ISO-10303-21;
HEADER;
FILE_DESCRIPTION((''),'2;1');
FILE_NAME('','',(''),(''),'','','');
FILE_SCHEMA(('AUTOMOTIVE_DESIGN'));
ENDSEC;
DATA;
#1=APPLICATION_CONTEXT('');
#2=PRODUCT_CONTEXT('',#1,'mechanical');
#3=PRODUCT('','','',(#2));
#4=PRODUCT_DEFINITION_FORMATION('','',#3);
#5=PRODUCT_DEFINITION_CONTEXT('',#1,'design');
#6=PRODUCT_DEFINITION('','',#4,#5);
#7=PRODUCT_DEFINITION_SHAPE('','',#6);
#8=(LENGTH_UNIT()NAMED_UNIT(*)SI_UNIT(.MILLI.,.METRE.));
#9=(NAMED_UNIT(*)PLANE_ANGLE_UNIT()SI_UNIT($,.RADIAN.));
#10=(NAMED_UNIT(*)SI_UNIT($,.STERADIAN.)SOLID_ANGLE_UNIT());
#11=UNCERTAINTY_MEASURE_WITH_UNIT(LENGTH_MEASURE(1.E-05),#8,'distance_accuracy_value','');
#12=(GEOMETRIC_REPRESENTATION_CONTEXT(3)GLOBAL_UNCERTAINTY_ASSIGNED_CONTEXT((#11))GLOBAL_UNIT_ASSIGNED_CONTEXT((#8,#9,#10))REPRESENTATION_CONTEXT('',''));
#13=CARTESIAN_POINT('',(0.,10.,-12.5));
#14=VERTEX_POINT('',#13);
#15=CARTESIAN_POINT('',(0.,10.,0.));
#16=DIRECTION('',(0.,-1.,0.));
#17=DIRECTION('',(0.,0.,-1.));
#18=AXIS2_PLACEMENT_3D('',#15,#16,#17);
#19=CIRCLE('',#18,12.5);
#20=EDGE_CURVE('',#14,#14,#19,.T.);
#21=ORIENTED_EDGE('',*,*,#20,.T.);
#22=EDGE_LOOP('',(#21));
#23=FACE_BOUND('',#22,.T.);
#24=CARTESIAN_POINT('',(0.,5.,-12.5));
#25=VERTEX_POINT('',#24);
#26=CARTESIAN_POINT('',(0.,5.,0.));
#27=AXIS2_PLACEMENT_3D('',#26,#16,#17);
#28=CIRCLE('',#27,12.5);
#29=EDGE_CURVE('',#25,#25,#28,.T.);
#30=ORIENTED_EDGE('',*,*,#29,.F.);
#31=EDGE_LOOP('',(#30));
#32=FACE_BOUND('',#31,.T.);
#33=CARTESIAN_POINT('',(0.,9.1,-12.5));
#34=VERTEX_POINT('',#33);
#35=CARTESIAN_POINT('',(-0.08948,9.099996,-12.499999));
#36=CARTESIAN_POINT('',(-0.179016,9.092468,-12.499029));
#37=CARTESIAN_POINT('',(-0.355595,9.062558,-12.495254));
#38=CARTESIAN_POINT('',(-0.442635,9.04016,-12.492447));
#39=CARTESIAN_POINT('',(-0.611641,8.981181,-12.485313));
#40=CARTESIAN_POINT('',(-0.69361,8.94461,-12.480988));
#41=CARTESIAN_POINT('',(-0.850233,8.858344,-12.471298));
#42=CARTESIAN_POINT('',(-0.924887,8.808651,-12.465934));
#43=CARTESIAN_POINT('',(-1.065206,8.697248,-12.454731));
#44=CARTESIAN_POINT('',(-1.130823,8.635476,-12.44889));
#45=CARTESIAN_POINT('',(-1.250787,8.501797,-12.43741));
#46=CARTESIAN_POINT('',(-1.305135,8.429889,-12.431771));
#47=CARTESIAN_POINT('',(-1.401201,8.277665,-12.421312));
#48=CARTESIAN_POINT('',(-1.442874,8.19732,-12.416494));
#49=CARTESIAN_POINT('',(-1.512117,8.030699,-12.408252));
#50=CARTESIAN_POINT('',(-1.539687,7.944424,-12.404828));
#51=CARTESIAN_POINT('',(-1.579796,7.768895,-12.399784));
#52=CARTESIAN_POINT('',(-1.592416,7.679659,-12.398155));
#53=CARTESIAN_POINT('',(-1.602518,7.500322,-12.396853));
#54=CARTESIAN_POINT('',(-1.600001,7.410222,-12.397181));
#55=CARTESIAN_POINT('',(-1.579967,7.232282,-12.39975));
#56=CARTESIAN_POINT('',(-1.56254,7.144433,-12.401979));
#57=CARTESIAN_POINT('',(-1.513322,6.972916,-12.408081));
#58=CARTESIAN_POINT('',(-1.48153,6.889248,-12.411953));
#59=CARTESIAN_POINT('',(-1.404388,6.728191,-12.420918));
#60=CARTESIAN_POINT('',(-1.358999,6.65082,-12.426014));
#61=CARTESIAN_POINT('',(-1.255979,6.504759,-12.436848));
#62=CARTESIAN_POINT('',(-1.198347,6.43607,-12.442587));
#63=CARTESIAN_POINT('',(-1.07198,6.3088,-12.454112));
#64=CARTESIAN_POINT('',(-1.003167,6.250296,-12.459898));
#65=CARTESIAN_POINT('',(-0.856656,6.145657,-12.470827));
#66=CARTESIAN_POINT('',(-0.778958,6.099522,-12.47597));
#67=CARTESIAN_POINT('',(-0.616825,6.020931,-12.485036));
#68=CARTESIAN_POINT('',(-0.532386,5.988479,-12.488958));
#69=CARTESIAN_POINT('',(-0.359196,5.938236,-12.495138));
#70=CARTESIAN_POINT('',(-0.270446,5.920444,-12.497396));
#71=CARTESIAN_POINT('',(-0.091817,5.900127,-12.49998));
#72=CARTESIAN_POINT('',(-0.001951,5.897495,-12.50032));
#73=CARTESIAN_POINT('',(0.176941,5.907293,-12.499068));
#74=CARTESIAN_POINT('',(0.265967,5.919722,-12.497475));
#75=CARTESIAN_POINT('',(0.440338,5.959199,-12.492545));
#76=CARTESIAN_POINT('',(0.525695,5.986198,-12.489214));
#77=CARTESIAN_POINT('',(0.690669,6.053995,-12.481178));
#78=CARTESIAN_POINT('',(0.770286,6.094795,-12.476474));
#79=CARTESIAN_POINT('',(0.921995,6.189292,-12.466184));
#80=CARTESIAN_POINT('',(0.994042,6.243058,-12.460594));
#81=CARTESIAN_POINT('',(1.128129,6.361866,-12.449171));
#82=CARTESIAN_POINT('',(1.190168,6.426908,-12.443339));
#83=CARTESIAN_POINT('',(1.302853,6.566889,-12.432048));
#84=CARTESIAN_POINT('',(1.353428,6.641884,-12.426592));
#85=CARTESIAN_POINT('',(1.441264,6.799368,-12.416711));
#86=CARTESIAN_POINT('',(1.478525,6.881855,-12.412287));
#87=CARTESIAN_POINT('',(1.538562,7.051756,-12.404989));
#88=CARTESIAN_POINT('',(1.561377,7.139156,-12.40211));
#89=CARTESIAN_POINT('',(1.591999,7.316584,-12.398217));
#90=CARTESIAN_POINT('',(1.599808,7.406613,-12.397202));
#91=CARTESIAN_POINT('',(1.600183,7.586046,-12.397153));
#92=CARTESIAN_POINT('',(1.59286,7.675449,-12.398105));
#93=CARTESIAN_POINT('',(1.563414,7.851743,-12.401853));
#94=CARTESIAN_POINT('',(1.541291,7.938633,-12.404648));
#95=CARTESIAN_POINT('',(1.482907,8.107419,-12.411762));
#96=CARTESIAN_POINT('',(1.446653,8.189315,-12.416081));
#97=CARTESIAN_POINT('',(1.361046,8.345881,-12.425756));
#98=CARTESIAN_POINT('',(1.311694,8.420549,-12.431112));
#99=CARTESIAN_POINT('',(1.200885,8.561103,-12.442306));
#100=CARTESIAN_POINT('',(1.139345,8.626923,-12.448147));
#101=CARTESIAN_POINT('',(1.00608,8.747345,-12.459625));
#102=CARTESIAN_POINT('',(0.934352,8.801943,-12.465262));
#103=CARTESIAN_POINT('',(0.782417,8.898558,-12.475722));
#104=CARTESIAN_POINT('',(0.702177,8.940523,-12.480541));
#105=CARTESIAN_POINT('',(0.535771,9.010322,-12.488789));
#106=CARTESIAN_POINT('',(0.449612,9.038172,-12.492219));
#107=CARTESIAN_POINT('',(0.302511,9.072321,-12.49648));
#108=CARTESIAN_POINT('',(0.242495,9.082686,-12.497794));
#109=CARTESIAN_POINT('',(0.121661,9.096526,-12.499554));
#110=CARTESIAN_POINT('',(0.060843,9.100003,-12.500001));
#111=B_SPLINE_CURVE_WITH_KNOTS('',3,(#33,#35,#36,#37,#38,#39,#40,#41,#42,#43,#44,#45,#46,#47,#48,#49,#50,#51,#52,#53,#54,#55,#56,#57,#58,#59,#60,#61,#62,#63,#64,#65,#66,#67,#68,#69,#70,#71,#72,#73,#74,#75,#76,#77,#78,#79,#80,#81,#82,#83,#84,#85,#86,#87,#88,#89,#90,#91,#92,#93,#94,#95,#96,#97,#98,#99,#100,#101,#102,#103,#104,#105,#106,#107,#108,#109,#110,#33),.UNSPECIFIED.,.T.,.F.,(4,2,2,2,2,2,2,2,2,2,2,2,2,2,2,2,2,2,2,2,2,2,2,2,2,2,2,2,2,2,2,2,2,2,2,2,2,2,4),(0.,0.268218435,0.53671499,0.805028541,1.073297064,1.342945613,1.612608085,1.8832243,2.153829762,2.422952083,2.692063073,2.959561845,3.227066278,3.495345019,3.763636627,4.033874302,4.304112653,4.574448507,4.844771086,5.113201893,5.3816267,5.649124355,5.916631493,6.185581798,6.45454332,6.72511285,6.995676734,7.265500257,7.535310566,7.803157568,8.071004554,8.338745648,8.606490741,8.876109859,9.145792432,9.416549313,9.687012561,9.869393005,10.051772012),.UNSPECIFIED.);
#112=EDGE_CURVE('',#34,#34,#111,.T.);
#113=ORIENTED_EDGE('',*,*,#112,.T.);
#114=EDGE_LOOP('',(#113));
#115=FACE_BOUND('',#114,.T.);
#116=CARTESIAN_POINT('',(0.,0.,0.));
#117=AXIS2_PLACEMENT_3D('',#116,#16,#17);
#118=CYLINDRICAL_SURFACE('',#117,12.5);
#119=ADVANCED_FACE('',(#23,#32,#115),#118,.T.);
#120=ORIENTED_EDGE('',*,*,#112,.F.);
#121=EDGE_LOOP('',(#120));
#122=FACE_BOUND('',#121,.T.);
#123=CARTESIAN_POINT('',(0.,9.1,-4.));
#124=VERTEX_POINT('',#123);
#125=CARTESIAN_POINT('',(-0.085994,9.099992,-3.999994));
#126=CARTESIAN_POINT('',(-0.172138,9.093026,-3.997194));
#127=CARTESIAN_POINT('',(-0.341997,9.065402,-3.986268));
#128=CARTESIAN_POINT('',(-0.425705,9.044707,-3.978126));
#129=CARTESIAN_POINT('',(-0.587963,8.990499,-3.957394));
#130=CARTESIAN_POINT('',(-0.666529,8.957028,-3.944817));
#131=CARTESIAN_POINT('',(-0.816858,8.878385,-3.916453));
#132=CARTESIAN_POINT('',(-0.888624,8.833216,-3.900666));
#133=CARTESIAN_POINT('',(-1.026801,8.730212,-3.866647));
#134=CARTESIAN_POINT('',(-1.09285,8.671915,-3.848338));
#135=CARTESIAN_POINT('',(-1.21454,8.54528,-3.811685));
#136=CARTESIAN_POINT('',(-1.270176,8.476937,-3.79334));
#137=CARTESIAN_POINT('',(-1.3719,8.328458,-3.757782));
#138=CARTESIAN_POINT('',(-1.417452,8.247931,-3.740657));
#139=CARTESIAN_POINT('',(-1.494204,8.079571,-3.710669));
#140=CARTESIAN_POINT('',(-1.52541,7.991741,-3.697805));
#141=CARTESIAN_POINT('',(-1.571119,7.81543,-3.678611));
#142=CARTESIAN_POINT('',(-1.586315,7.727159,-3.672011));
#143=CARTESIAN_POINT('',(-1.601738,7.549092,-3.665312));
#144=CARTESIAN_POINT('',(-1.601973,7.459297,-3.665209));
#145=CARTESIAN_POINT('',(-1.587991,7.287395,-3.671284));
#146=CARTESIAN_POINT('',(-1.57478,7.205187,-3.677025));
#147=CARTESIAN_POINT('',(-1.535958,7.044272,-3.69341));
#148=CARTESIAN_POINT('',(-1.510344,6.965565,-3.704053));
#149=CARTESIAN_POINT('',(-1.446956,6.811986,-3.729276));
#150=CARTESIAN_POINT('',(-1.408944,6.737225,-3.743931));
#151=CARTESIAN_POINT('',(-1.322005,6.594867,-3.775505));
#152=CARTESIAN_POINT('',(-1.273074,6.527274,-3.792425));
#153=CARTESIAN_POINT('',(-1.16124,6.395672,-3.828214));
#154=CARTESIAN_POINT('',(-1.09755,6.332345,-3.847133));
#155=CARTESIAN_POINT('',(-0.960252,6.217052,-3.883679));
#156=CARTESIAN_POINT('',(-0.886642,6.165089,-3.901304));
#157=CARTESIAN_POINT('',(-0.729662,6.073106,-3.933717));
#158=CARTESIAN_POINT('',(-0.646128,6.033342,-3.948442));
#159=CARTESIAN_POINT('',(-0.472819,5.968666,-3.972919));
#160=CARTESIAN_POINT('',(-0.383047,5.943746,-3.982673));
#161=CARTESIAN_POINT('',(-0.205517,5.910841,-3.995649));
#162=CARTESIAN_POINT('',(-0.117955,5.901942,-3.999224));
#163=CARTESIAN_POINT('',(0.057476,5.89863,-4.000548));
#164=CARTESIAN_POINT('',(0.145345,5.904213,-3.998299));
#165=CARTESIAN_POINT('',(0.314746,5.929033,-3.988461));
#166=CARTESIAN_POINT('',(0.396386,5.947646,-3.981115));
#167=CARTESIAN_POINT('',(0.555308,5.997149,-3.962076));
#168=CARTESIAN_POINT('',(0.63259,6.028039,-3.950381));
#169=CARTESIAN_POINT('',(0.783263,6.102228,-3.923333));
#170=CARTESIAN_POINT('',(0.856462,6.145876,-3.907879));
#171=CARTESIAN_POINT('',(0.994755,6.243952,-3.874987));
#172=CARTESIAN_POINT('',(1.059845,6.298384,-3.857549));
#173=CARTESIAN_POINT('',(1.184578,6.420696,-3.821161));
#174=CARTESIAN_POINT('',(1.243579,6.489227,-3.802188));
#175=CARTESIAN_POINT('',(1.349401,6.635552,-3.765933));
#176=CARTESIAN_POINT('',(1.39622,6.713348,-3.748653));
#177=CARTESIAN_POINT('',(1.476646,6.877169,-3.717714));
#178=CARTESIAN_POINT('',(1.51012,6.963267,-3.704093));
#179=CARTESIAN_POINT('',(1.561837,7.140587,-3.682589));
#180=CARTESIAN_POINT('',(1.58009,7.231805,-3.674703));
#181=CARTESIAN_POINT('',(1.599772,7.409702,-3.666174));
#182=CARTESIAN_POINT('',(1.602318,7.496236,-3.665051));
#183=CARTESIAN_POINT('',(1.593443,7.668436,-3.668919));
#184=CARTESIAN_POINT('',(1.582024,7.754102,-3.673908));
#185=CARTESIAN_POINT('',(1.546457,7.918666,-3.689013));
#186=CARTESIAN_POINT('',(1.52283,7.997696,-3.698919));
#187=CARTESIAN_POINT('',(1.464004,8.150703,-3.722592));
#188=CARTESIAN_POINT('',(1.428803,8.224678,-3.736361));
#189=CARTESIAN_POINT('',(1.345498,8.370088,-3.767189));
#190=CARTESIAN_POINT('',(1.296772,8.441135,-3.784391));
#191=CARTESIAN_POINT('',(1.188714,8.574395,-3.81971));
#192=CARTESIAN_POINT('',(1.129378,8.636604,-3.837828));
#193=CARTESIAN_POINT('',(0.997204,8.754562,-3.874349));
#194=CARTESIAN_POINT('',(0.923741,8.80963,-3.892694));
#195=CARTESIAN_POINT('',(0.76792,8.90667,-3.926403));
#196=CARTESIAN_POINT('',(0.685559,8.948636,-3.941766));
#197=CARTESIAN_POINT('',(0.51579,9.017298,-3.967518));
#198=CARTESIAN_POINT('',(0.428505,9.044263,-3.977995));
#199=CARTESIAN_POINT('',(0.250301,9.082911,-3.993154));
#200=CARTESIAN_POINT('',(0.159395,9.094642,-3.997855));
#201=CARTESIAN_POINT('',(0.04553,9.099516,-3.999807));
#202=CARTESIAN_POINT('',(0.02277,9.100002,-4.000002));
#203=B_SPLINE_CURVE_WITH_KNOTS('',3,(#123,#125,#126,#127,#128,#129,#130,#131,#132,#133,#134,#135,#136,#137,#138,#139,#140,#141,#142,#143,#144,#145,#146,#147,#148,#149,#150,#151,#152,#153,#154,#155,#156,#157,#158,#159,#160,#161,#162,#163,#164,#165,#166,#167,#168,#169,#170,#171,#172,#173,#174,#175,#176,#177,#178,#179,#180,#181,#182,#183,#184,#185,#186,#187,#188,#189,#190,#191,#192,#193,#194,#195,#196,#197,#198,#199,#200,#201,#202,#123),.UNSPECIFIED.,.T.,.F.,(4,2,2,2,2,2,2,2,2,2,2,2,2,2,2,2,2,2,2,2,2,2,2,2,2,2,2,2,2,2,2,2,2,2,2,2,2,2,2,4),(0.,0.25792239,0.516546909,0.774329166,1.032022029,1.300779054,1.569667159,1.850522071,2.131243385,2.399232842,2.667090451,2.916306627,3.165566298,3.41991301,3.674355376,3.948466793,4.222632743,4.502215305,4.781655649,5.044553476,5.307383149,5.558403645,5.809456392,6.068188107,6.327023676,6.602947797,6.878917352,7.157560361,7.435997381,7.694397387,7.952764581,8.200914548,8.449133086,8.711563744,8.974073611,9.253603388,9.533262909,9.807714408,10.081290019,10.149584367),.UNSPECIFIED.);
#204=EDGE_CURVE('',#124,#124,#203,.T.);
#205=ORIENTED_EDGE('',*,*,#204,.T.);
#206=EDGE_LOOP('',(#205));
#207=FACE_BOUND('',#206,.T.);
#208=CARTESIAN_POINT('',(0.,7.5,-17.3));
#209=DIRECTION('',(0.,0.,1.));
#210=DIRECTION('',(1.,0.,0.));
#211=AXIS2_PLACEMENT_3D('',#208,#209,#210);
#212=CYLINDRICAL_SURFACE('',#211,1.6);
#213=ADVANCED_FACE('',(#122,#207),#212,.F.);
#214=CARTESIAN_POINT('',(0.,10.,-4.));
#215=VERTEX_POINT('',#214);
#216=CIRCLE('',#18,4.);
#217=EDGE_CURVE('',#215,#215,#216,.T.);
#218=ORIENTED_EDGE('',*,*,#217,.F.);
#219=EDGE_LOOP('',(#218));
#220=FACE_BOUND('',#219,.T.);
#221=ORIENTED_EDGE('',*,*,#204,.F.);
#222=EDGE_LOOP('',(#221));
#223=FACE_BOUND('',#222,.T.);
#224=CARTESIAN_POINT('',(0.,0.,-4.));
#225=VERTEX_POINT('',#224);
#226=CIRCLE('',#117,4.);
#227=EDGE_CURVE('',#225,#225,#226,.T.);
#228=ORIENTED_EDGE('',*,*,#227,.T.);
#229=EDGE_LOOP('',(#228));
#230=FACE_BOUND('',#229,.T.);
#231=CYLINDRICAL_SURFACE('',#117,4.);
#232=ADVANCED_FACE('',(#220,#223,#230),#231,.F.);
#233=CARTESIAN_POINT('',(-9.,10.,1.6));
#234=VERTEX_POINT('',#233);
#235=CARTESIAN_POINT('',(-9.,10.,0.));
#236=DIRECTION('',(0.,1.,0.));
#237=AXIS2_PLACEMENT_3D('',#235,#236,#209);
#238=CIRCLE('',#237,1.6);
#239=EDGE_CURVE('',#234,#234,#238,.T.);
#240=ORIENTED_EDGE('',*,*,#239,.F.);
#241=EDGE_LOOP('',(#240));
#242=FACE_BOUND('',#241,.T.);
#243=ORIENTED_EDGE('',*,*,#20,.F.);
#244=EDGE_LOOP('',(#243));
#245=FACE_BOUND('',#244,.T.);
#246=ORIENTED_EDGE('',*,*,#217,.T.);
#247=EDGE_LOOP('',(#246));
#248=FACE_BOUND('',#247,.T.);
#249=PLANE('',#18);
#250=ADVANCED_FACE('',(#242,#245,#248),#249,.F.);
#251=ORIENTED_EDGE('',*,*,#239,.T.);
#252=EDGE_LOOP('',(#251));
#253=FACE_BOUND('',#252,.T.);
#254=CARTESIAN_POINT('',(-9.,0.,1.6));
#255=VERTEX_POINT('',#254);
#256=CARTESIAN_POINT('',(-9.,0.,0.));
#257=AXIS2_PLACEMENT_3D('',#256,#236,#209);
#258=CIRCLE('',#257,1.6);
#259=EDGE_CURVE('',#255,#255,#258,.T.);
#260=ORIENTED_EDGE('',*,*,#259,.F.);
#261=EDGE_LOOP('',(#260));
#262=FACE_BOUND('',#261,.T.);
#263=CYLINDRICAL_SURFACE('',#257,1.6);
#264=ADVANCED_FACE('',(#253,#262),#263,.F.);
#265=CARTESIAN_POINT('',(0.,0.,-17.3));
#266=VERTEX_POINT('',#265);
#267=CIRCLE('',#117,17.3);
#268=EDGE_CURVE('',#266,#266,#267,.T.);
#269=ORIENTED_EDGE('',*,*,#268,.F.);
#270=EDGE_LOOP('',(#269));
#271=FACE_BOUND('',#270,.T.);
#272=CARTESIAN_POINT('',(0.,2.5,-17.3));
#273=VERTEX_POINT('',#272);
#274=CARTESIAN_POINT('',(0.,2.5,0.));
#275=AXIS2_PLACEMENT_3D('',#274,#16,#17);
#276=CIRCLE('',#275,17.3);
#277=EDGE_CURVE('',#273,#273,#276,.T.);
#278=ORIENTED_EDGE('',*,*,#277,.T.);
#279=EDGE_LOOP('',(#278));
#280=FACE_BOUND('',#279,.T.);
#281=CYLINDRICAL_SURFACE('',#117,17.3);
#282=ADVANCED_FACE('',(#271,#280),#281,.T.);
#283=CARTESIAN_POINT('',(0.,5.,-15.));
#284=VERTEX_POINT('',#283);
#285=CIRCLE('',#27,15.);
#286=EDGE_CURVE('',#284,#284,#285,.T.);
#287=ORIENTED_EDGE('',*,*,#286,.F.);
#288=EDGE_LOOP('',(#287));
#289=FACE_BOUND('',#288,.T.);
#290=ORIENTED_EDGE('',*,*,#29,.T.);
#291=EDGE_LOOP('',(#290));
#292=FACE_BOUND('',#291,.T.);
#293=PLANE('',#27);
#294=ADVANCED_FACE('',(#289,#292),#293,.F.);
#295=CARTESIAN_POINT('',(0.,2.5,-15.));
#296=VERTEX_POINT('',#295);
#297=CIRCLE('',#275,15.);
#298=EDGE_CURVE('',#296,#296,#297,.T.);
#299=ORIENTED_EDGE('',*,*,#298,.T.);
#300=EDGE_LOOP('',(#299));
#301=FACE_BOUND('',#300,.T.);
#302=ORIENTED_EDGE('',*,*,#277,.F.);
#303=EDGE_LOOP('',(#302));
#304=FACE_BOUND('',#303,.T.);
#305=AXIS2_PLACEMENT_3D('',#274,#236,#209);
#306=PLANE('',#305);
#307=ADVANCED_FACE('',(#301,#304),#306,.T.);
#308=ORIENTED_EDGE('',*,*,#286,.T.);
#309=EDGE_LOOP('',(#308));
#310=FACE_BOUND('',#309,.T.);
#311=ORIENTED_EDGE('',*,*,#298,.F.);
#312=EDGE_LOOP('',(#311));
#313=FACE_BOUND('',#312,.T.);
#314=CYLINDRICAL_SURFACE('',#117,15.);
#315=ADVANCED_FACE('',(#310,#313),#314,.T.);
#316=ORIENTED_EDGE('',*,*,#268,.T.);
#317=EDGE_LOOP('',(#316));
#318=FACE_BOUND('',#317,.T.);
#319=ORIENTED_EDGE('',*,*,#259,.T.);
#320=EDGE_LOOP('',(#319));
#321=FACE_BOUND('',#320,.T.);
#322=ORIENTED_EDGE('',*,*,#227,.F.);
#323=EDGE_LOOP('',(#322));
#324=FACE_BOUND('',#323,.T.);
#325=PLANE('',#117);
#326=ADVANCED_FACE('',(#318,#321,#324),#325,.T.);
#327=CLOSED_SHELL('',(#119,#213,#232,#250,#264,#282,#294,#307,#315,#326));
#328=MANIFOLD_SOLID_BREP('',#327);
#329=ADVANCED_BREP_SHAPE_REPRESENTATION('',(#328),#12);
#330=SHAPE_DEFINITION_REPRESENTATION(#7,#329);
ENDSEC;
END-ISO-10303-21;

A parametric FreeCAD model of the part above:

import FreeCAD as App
import Part
import Sketcher
Q = App.Units.Quantity


def add_polygon(sketch, points):
    """Adds a closed chain of lines whose ends are joined by coincident constraints."""
    first, n = sketch.GeometryCount, len(points)
    for a, b in zip(points, points[1:] + points[:1]):
        sketch.addGeometry(Part.LineSegment(App.Vector(*a, 0), App.Vector(*b, 0)), False)
    for i in range(n):
        sketch.addConstraint(Sketcher.Constraint("Coincident", first + i, 2, first + (i + 1) % n, 1))

doc = App.newDocument("Part")
body = doc.addObject("PartDesign::Body", "Body")

sketch1 = body.newObject("Sketcher::SketchObject", "Sketch")
sketch1.AttachmentSupport = (doc.getObject("XY_Plane"), [""])
sketch1.MapMode = "FlatFace"
add_polygon(sketch1, [(-4, 0), (-4, 10), (-12.5, 10), (-12.5, 5), (-15, 5), (-15, 2.5), (-17.3, 2.5), (-17.3, 0)])
sketch1.addConstraint([
    Sketcher.Constraint("Vertical", 0),
    Sketcher.Constraint("Horizontal", 1),
    Sketcher.Constraint("Vertical", 2),
    Sketcher.Constraint("Horizontal", 3),
    Sketcher.Constraint("Vertical", 4),
    Sketcher.Constraint("Horizontal", 5),
    Sketcher.Constraint("Vertical", 6),
    Sketcher.Constraint("Horizontal", 7),
    Sketcher.Constraint("PointOnObject", 6, 2, -1),
    Sketcher.Constraint("Equal", 3, 4),
    Sketcher.Constraint("Equal", 4, 6),
    Sketcher.Constraint("DistanceY", 0, 1, 0, 2, Q("10 mm")),
    Sketcher.Constraint("DistanceY", 2, 2, 2, 1, Q("5 mm")),
    Sketcher.Constraint("DistanceX", 1, 2, 1, 1, Q("8.5 mm")),
    Sketcher.Constraint("DistanceX", 5, 2, 5, 1, Q("2.3 mm")),
    Sketcher.Constraint("DistanceX", 0, 2, -1, 1, Q("4 mm")),
])
revolution = body.newObject("PartDesign::Revolution", "Revolution")
revolution.Profile = sketch1
revolution.ReferenceAxis = (sketch1, ["V_Axis"])
revolution.Angle = 360

sketch2 = body.newObject("Sketcher::SketchObject", "Sketch001")
sketch2.AttachmentSupport = (doc.getObject("XY_Plane"), [""])
sketch2.MapMode = "FlatFace"
sketch2.addGeometry(Part.Circle(App.Vector(0, 7.5, 0), App.Vector(0, 0, 1), 1.6), False)
sketch2.addConstraint([
    Sketcher.Constraint("PointOnObject", 0, 3, -2),
    Sketcher.Constraint("Diameter", 0, Q("3.2 mm")),
    Sketcher.Constraint("DistanceY", -1, 1, 0, 3, Q("7.5 mm")),
])
pocket1 = body.newObject("PartDesign::Pocket", "Pocket")
pocket1.Profile = sketch2
pocket1.Type = "ThroughAll"

sketch3 = body.newObject("Sketcher::SketchObject", "Sketch002")
sketch3.AttachmentSupport = (doc.getObject("XZ_Plane"), [""])
sketch3.MapMode = "FlatFace"
sketch3.AttachmentOffset = App.Placement(App.Vector(0, 0, -10), App.Rotation())
sketch3.addGeometry(Part.Circle(App.Vector(-9, 0, 0), App.Vector(0, 0, 1), 1.6), False)
sketch3.addConstraint([
    Sketcher.Constraint("PointOnObject", 0, 3, -1),
    Sketcher.Constraint("Diameter", 0, Q("3.2 mm")),
    Sketcher.Constraint("DistanceX", 0, 3, -1, 1, Q("9 mm")),
])
pocket2 = body.newObject("PartDesign::Pocket", "Pocket001")
pocket2.Profile = sketch3
pocket2.Type = "ThroughAll"
pocket2.Reversed = True

doc.recompute()
